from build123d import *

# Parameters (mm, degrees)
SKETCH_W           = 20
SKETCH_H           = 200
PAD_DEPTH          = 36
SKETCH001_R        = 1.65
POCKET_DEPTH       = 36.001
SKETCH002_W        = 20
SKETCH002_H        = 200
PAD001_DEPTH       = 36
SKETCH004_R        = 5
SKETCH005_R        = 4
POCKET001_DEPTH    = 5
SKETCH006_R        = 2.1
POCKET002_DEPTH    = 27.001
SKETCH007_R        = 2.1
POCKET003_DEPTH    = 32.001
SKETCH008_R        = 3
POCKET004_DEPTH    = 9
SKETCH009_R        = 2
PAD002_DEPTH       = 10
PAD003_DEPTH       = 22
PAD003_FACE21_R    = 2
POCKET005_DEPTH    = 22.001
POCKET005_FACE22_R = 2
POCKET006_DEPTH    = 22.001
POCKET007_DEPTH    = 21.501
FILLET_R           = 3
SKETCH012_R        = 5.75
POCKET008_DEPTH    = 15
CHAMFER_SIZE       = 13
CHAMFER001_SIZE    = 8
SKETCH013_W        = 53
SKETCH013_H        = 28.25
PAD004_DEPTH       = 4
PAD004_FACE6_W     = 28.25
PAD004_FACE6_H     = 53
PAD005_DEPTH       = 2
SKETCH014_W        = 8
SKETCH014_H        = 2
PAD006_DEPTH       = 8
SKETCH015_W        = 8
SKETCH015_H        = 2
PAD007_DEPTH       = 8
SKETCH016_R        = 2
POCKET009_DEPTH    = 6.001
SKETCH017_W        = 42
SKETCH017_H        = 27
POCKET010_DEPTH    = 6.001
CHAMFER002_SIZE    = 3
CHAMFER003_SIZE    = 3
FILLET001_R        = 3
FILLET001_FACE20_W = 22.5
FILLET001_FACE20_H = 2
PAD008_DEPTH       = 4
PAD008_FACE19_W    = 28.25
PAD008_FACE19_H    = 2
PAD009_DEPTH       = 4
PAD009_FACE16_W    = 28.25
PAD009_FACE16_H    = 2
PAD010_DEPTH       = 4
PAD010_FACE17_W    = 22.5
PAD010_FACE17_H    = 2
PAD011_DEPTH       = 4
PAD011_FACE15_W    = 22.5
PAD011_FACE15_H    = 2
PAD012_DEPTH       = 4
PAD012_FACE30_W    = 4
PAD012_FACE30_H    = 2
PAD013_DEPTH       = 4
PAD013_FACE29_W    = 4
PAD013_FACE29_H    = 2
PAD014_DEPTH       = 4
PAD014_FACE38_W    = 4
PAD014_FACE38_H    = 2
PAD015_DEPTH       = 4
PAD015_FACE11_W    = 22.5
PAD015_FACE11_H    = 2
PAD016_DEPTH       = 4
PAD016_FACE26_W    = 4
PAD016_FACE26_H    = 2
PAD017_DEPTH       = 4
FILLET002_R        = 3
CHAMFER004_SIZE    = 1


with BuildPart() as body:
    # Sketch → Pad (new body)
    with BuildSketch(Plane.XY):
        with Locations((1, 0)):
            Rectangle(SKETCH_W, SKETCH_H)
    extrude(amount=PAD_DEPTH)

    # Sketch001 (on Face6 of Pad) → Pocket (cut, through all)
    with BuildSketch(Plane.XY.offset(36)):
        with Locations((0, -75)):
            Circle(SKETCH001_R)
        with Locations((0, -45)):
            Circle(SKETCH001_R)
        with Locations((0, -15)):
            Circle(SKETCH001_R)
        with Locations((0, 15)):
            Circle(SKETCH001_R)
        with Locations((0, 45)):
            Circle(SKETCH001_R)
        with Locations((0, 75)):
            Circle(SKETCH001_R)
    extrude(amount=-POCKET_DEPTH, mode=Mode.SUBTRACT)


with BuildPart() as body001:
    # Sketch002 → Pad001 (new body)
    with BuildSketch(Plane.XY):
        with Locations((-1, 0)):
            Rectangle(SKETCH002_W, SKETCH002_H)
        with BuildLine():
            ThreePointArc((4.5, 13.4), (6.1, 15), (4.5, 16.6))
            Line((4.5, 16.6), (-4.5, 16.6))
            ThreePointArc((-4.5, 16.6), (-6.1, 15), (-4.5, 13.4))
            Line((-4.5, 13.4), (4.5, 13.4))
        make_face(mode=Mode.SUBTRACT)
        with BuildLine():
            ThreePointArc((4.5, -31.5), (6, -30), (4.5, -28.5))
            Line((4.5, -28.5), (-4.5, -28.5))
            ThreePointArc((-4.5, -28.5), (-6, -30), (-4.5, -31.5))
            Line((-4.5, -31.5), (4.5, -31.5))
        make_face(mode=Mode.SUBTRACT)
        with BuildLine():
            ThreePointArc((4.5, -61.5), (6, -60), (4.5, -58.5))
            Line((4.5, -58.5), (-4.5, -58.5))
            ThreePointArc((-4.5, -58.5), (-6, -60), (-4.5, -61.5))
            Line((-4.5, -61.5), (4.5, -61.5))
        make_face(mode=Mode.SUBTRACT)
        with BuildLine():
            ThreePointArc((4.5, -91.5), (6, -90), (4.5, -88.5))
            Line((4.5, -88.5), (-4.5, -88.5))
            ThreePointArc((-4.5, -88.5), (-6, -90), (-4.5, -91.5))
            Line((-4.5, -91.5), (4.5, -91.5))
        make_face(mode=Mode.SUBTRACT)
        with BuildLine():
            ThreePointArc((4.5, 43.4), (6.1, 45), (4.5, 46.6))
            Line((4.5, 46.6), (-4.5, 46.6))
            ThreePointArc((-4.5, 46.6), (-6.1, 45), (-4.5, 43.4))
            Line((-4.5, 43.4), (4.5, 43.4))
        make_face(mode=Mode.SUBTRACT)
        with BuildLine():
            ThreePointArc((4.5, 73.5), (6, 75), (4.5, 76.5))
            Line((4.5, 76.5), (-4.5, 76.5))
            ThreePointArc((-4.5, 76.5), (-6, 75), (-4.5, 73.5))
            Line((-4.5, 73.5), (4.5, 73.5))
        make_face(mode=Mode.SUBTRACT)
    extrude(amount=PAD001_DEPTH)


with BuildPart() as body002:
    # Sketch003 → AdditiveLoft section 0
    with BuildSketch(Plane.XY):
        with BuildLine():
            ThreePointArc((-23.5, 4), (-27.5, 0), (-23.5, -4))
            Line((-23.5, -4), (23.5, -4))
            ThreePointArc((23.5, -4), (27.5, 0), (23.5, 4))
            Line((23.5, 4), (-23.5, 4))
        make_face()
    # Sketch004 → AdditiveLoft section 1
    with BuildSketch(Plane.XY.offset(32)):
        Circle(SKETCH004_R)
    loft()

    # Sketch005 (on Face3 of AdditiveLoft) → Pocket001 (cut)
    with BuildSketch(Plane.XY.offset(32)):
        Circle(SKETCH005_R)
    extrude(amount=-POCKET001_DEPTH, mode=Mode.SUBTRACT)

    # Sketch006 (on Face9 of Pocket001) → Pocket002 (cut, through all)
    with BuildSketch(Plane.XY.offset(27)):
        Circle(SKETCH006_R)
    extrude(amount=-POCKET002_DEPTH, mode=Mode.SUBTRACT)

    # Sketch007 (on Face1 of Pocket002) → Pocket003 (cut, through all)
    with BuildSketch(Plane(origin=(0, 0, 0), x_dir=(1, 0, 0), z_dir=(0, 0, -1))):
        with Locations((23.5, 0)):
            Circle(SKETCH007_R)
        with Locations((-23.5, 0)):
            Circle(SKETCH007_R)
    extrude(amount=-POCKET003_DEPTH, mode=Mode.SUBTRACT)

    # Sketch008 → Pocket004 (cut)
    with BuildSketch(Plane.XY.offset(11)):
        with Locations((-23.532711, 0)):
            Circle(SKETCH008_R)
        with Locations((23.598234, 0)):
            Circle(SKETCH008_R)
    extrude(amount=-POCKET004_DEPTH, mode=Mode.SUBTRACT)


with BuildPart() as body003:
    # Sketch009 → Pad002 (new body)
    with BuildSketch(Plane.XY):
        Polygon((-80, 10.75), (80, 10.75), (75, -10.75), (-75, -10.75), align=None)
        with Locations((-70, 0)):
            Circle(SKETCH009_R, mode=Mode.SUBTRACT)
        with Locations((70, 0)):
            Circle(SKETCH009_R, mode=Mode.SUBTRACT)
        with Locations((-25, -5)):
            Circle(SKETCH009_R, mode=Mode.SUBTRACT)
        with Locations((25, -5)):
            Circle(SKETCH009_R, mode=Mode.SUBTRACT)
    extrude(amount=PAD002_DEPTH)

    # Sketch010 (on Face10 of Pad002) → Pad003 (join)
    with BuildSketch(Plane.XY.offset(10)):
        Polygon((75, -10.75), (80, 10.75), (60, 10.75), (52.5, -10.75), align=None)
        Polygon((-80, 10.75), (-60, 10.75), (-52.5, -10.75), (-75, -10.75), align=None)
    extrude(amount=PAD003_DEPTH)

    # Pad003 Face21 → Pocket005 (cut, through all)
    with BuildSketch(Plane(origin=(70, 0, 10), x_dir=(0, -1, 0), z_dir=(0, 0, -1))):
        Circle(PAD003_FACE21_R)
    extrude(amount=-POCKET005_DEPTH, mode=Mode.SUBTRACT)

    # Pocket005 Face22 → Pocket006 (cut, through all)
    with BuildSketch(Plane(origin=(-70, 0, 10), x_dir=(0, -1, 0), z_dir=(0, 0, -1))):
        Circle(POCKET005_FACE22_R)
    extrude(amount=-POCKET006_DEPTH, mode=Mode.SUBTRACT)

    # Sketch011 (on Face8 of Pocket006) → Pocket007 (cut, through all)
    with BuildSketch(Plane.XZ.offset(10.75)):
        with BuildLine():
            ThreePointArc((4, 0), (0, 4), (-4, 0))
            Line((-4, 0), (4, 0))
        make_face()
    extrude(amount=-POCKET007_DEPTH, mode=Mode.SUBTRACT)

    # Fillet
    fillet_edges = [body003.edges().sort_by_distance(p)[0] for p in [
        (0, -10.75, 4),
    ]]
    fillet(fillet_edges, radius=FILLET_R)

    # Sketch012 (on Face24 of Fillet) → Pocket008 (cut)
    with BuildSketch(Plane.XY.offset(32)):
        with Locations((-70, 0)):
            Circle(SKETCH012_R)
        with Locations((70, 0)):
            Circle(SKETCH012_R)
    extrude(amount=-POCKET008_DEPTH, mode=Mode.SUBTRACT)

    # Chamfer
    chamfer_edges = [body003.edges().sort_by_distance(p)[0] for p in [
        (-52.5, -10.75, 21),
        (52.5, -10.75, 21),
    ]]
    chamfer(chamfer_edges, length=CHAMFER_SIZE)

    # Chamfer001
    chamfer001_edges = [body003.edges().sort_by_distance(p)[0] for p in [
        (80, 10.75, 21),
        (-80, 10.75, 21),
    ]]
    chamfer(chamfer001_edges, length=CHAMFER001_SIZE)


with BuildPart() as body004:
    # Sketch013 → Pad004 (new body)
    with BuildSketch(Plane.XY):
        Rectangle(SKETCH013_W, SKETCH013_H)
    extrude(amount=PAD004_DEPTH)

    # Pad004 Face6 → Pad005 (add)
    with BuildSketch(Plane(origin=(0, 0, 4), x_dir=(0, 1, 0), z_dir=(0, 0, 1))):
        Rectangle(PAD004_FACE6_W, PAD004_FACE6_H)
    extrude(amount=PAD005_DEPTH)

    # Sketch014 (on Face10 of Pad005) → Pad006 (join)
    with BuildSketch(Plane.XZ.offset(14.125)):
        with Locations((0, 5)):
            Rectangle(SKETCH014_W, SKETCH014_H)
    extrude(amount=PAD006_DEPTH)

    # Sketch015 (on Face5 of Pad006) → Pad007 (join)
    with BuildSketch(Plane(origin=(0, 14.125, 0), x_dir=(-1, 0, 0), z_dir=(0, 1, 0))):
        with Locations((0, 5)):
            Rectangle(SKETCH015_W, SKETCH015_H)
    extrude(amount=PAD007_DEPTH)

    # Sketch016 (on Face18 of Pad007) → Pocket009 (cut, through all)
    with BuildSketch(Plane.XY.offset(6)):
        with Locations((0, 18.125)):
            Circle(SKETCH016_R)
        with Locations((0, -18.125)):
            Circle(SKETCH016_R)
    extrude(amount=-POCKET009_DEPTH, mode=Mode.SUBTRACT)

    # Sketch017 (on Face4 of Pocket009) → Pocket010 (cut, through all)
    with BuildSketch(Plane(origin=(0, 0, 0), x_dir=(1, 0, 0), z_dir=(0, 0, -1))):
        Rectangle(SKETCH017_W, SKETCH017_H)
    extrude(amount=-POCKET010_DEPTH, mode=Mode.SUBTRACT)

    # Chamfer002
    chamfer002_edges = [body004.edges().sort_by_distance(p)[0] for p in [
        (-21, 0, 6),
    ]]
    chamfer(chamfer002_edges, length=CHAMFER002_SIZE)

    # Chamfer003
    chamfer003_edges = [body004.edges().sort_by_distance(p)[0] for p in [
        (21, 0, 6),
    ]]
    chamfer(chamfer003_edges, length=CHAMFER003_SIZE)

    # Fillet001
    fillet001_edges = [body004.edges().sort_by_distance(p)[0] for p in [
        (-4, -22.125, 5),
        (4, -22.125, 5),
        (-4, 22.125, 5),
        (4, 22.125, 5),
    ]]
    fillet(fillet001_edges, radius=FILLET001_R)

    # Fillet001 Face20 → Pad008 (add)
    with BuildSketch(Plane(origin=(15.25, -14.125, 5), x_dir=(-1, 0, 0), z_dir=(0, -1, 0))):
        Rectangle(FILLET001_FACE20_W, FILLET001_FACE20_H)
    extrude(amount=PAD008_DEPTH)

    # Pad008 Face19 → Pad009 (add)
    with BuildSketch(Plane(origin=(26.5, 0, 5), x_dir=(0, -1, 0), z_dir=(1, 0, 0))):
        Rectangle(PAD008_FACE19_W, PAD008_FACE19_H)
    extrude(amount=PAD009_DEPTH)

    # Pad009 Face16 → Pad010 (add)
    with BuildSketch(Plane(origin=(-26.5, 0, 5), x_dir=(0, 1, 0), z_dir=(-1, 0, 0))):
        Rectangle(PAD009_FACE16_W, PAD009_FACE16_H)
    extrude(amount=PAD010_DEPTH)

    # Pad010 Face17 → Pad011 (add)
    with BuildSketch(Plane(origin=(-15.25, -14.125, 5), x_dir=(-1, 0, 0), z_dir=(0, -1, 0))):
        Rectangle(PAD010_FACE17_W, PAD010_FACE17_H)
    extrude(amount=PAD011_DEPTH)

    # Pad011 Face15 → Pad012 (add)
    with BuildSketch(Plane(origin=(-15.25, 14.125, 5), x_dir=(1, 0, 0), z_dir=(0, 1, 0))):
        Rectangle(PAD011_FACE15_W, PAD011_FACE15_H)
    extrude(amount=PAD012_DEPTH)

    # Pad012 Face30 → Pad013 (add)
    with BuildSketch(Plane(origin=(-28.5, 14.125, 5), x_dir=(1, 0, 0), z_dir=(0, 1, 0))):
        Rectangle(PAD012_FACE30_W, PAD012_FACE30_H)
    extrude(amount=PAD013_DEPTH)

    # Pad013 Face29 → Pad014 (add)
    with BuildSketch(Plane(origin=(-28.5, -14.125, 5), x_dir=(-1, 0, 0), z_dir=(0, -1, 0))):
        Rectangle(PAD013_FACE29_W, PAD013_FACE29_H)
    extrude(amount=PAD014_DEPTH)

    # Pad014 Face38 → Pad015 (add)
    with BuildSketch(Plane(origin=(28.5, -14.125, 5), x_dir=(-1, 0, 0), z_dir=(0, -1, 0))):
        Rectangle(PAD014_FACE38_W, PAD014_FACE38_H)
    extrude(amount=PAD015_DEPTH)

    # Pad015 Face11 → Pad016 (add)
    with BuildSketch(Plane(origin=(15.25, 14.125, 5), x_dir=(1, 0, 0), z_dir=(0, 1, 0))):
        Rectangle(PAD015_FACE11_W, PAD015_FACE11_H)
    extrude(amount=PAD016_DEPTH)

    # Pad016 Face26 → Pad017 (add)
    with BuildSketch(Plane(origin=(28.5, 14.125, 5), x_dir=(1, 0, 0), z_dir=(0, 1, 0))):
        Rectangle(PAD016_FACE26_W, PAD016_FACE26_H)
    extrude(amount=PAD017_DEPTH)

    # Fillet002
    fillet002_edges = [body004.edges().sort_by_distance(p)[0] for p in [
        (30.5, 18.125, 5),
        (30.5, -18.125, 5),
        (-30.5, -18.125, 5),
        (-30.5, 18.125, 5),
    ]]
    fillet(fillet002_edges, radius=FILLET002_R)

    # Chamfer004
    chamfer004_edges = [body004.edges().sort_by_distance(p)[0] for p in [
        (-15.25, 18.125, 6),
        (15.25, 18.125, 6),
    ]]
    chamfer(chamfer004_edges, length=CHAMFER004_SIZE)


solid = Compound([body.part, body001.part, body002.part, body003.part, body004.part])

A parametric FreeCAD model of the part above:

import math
import FreeCAD as App
import Part
import Sketcher
Q = App.Units.Quantity


def edges_at(feature, points):
    """Names of the edges that pass closest to the given points."""
    edges = feature.Shape.Edges
    near = lambda p: min(range(len(edges)), key=lambda i: edges[i].distToShape(Part.Vertex(*p))[0])
    return sorted({f"Edge{near(p) + 1}" for p in points})


def add_polygon(sketch, points):
    """Adds a closed chain of lines whose ends are joined by coincident constraints."""
    first, n = sketch.GeometryCount, len(points)
    for a, b in zip(points, points[1:] + points[:1]):
        sketch.addGeometry(Part.LineSegment(App.Vector(*a, 0), App.Vector(*b, 0)), False)
    for i in range(n):
        sketch.addConstraint(Sketcher.Constraint("Coincident", first + i, 2, first + (i + 1) % n, 1))

doc = App.newDocument("Part")
body = doc.addObject("PartDesign::Body", "Body")

sketch1 = doc.addObject("Sketcher::SketchObject", "Sketch")
body.addObject(sketch1)
sketch1.AttachmentSupport = (doc.XY_Plane, [""])
sketch1.MapMode = "FlatFace"
add_polygon(sketch1, [(-9, 100), (-9, -100), (11, -100), (11, 100)])
sketch1.addConstraint([
    Sketcher.Constraint("Vertical", 0),
    Sketcher.Constraint("Horizontal", 1),
    Sketcher.Constraint("Vertical", 2),
    Sketcher.Constraint("Horizontal", 3),
    Sketcher.Constraint("DistanceX", 1, 1, 1, 2, Q("20 mm")),
    Sketcher.Constraint("DistanceY", 0, 2, 0, 1, Q("200 mm")),
    Sketcher.Constraint("DistanceX", 0, 2, -1, 1, Q("9 mm")),
    Sketcher.Constraint("DistanceY", 0, 2, -1, 1, Q("100 mm")),
])
pad1 = doc.addObject("PartDesign::Pad", "Pad")
body.addObject(pad1)
pad1.Profile = sketch1
pad1.Length = 36

sketch2 = doc.addObject("Sketcher::SketchObject", "Sketch001")
body.addObject(sketch2)
sketch2.AttachmentSupport = (doc.XY_Plane, [""])
sketch2.MapMode = "FlatFace"
sketch2.AttachmentOffset = App.Placement(App.Vector(0, 0, 36), App.Rotation())
sketch2.addGeometry([
    Part.Circle(App.Vector(0, -75, 0), App.Vector(0, 0, 1), 1.6),
    Part.Circle(App.Vector(0, -45, 0), App.Vector(0, 0, 1), 1.6),
    Part.Circle(App.Vector(0, -15, 0), App.Vector(0, 0, 1), 1.6),
    Part.Circle(App.Vector(0, 15, 0), App.Vector(0, 0, 1), 1.6),
    Part.Circle(App.Vector(0, 45, 0), App.Vector(0, 0, 1), 1.6),
    Part.Circle(App.Vector(0, 75, 0), App.Vector(0, 0, 1), 1.6),
], False)
sketch2.addConstraint([
    Sketcher.Constraint("Equal", 0, 1),
    Sketcher.Constraint("Equal", 1, 2),
    Sketcher.Constraint("Equal", 2, 3),
    Sketcher.Constraint("Equal", 3, 4),
    Sketcher.Constraint("Equal", 4, 5),
    Sketcher.Constraint("Symmetric", 2, 3, 3, 3, -1, 1),
    Sketcher.Constraint("Symmetric", 1, 3, 4, 3, -1, 1),
    Sketcher.Constraint("Symmetric", 0, 3, 5, 3, -1, 1),
    Sketcher.Constraint("PointOnObject", 0, 3, -2),
    Sketcher.Constraint("PointOnObject", 1, 3, -2),
    Sketcher.Constraint("PointOnObject", 2, 3, -2),
    Sketcher.Constraint("Diameter", 0, Q("3.3 mm")),
    Sketcher.Constraint("DistanceY", 0, 3, -1, 1, Q("75 mm")),
    Sketcher.Constraint("DistanceY", 1, 3, -1, 1, Q("45 mm")),
    Sketcher.Constraint("DistanceY", 2, 3, -1, 1, Q("15 mm")),
])
pocket1 = doc.addObject("PartDesign::Pocket", "Pocket")
body.addObject(pocket1)
pocket1.Profile = sketch2
pocket1.Type = "ThroughAll"
body2 = doc.addObject("PartDesign::Body", "Body001")

sketch3 = doc.addObject("Sketcher::SketchObject", "Sketch002")
body2.addObject(sketch3)
sketch3.AttachmentSupport = (doc.getObject("XY_Plane001"), [""])
sketch3.MapMode = "FlatFace"
add_polygon(sketch3, [(-11, 100), (-11, -100), (9, -100), (9, 100)])
sketch3.addGeometry(Part.ArcOfCircle(Part.Circle(App.Vector(4.5, -90, 0), App.Vector(0, 0, 1), 1.5), math.radians(-90), math.radians(90)), False)
sketch3.addGeometry(Part.LineSegment(App.Vector(4.5, -91.5, 0), App.Vector(-4.5, -91.5, 0)), False)
sketch3.addGeometry(Part.ArcOfCircle(Part.Circle(App.Vector(-4.5, -90, 0), App.Vector(0, 0, 1), 1.5), math.radians(90), math.radians(270)), False)
sketch3.addGeometry(Part.LineSegment(App.Vector(-4.5, -88.5, 0), App.Vector(4.5, -88.5, 0)), False)
sketch3.addGeometry(Part.ArcOfCircle(Part.Circle(App.Vector(4.5, -60, 0), App.Vector(0, 0, 1), 1.5), math.radians(-90), math.radians(90)), False)
sketch3.addGeometry(Part.LineSegment(App.Vector(4.5, -61.5, 0), App.Vector(-4.5, -61.5, 0)), False)
sketch3.addGeometry(Part.ArcOfCircle(Part.Circle(App.Vector(-4.5, -60, 0), App.Vector(0, 0, 1), 1.5), math.radians(90), math.radians(270)), False)
sketch3.addGeometry(Part.LineSegment(App.Vector(-4.5, -58.5, 0), App.Vector(4.5, -58.5, 0)), False)
sketch3.addGeometry(Part.ArcOfCircle(Part.Circle(App.Vector(4.5, -30, 0), App.Vector(0, 0, 1), 1.5), math.radians(-90), math.radians(90)), False)
sketch3.addGeometry(Part.LineSegment(App.Vector(4.5, -31.5, 0), App.Vector(-4.5, -31.5, 0)), False)
sketch3.addGeometry(Part.ArcOfCircle(Part.Circle(App.Vector(-4.5, -30, 0), App.Vector(0, 0, 1), 1.5), math.radians(90), math.radians(270)), False)
sketch3.addGeometry(Part.LineSegment(App.Vector(-4.5, -28.5, 0), App.Vector(4.5, -28.5, 0)), False)
sketch3.addGeometry(Part.ArcOfCircle(Part.Circle(App.Vector(4.5, 15, 0), App.Vector(0, 0, 1), 1.6), math.radians(-90), math.radians(90)), False)
sketch3.addGeometry(Part.LineSegment(App.Vector(4.5, 13.4, 0), App.Vector(-4.5, 13.4, 0)), False)
sketch3.addGeometry(Part.ArcOfCircle(Part.Circle(App.Vector(-4.5, 15, 0), App.Vector(0, 0, 1), 1.6), math.radians(90), math.radians(270)), False)
sketch3.addGeometry(Part.LineSegment(App.Vector(-4.5, 16.6, 0), App.Vector(4.5, 16.6, 0)), False)
sketch3.addGeometry(Part.ArcOfCircle(Part.Circle(App.Vector(4.5, 45, 0), App.Vector(0, 0, 1), 1.6), math.radians(-90), math.radians(90)), False)
sketch3.addGeometry(Part.LineSegment(App.Vector(4.5, 43.4, 0), App.Vector(-4.5, 43.4, 0)), False)
sketch3.addGeometry(Part.ArcOfCircle(Part.Circle(App.Vector(-4.5, 45, 0), App.Vector(0, 0, 1), 1.6), math.radians(90), math.radians(270)), False)
sketch3.addGeometry(Part.LineSegment(App.Vector(-4.5, 46.6, 0), App.Vector(4.5, 46.6, 0)), False)
sketch3.addGeometry(Part.ArcOfCircle(Part.Circle(App.Vector(4.5, 75, 0), App.Vector(0, 0, 1), 1.5), math.radians(-90), math.radians(90)), False)
sketch3.addGeometry(Part.LineSegment(App.Vector(4.5, 73.5, 0), App.Vector(-4.5, 73.5, 0)), False)
sketch3.addGeometry(Part.ArcOfCircle(Part.Circle(App.Vector(-4.5, 75, 0), App.Vector(0, 0, 1), 1.5), math.radians(90), math.radians(270)), False)
sketch3.addGeometry(Part.LineSegment(App.Vector(-4.5, 76.5, 0), App.Vector(4.5, 76.5, 0)), False)
sketch3.addConstraint([
    Sketcher.Constraint("Tangent", 4, 1, 5, 1),
    Sketcher.Constraint("Tangent", 5, 2, 6, 2),
    Sketcher.Constraint("Tangent", 6, 1, 7, 1),
    Sketcher.Constraint("Tangent", 7, 2, 4, 2),
    Sketcher.Constraint("Tangent", 8, 1, 9, 1),
    Sketcher.Constraint("Tangent", 9, 2, 10, 2),
    Sketcher.Constraint("Tangent", 10, 1, 11, 1),
    Sketcher.Constraint("Tangent", 11, 2, 8, 2),
    Sketcher.Constraint("Tangent", 12, 1, 13, 1),
    Sketcher.Constraint("Tangent", 13, 2, 14, 2),
    Sketcher.Constraint("Tangent", 14, 1, 15, 1),
    Sketcher.Constraint("Tangent", 15, 2, 12, 2),
    Sketcher.Constraint("Tangent", 16, 1, 17, 1),
    Sketcher.Constraint("Tangent", 17, 2, 18, 2),
    Sketcher.Constraint("Tangent", 18, 1, 19, 1),
    Sketcher.Constraint("Tangent", 19, 2, 16, 2),
    Sketcher.Constraint("Tangent", 20, 1, 21, 1),
    Sketcher.Constraint("Tangent", 21, 2, 22, 2),
    Sketcher.Constraint("Tangent", 22, 1, 23, 1),
    Sketcher.Constraint("Tangent", 23, 2, 20, 2),
    Sketcher.Constraint("Tangent", 24, 1, 25, 1),
    Sketcher.Constraint("Tangent", 25, 2, 26, 2),
    Sketcher.Constraint("Tangent", 26, 1, 27, 1),
    Sketcher.Constraint("Tangent", 27, 2, 24, 2),
    Sketcher.Constraint("Vertical", 0),
    Sketcher.Constraint("Horizontal", 1),
    Sketcher.Constraint("Vertical", 2),
    Sketcher.Constraint("Horizontal", 3),
    Sketcher.Constraint("Horizontal", 5),
    Sketcher.Constraint("Horizontal", 7),
    Sketcher.Constraint("Horizontal", 9),
    Sketcher.Constraint("Horizontal", 11),
    Sketcher.Constraint("Horizontal", 13),
    Sketcher.Constraint("Horizontal", 15),
    Sketcher.Constraint("Horizontal", 17),
    Sketcher.Constraint("Horizontal", 19),
    Sketcher.Constraint("Horizontal", 21),
    Sketcher.Constraint("Horizontal", 23),
    Sketcher.Constraint("Horizontal", 25),
    Sketcher.Constraint("Horizontal", 27),
    Sketcher.Constraint("Equal", 6, 8),
    Sketcher.Constraint("Equal", 10, 12),
    Sketcher.Constraint("Equal", 18, 20),
    Sketcher.Constraint("Equal", 14, 24),
    Sketcher.Constraint("Vertical", 4, 3, 8, 3),
    Sketcher.Constraint("Vertical", 6, 3, 10, 3),
    Sketcher.Constraint("Vertical", 8, 3, 12, 3),
    Sketcher.Constraint("Vertical", 10, 3, 14, 3),
    Sketcher.Constraint("Vertical", 12, 3, 16, 3),
    Sketcher.Constraint("Vertical", 14, 3, 18, 3),
    Sketcher.Constraint("Vertical", 16, 3, 20, 3),
    Sketcher.Constraint("Vertical", 18, 3, 22, 3),
    Sketcher.Constraint("Vertical", 20, 3, 24, 3),
    Sketcher.Constraint("Vertical", 22, 3, 26, 3),
    Sketcher.Constraint("Radius", 4, Q("1.5 mm")),
    Sketcher.Constraint("Radius", 16, Q("1.6 mm")),
    Sketcher.Constraint("DistanceX", 1, 1, 1, 2, Q("20 mm")),
    Sketcher.Constraint("DistanceX", 5, 2, 5, 1, Q("9 mm")),
    Sketcher.Constraint("DistanceY", 0, 2, 0, 1, Q("200 mm")),
    Sketcher.Constraint("DistanceY", 4, 3, -1, 1, Q("90 mm")),
    Sketcher.Constraint("DistanceY", 8, 3, -1, 1, Q("60 mm")),
    Sketcher.Constraint("DistanceY", 12, 3, -1, 1, Q("30 mm")),
    Sketcher.Constraint("DistanceY", -1, 1, 16, 3, Q("15 mm")),
    Sketcher.Constraint("DistanceY", -1, 1, 20, 3, Q("45 mm")),
    Sketcher.Constraint("DistanceY", -1, 1, 24, 3, Q("75 mm")),
    Sketcher.Constraint("DistanceX", 0, 2, -1, 1, Q("11 mm")),
    Sketcher.Constraint("DistanceY", 0, 2, -1, 1, Q("100 mm")),
    Sketcher.Constraint("DistanceX", -1, 1, 4, 3, Q("4.5 mm")),
])
pad2 = doc.addObject("PartDesign::Pad", "Pad001")
body2.addObject(pad2)
pad2.Profile = sketch3
pad2.Length = 36
body3 = doc.addObject("PartDesign::Body", "Body002")

sketch4 = doc.addObject("Sketcher::SketchObject", "Sketch003")
body3.addObject(sketch4)
sketch4.AttachmentSupport = (doc.getObject("XY_Plane002"), [""])
sketch4.MapMode = "FlatFace"
sketch4.addGeometry([
    Part.ArcOfCircle(Part.Circle(App.Vector(-23.5, 0, 0), App.Vector(0, 0, 1), 4), math.radians(90), math.radians(270)),
    Part.LineSegment(App.Vector(-23.5, -4, 0), App.Vector(23.5, -4, 0)),
    Part.ArcOfCircle(Part.Circle(App.Vector(23.5, 0, 0), App.Vector(0, 0, 1), 4), math.radians(-90), math.radians(90)),
    Part.LineSegment(App.Vector(23.5, 4, 0), App.Vector(-23.5, 4, 0)),
], False)
sketch4.addConstraint([
    Sketcher.Constraint("Tangent", 0, 2, 1, 1),
    Sketcher.Constraint("Tangent", 1, 2, 2, 1),
    Sketcher.Constraint("Tangent", 2, 2, 3, 1),
    Sketcher.Constraint("Tangent", 3, 2, 0, 1),
    Sketcher.Constraint("Horizontal", 1),
    Sketcher.Constraint("Horizontal", 3),
    Sketcher.Constraint("Symmetric", 0, 3, 2, 3, -1, 1),
    Sketcher.Constraint("Radius", 0, Q("4 mm")),
    Sketcher.Constraint("DistanceX", 1, 1, 1, 2, Q("47 mm")),
])

sketch5 = doc.addObject("Sketcher::SketchObject", "Sketch004")
body3.addObject(sketch5)
sketch5.AttachmentSupport = (doc.getObject("XY_Plane002"), [""])
sketch5.MapMode = "FlatFace"
sketch5.AttachmentOffset = App.Placement(App.Vector(0, 0, 32), App.Rotation())
sketch5.addGeometry(Part.Circle(App.Vector(0, 0, 0), App.Vector(0, 0, 1), 5), False)
sketch5.addConstraint([
    Sketcher.Constraint("Coincident", 0, 3, -1, 1),
    Sketcher.Constraint("Diameter", 0, Q("10 mm")),
])

additiveloft = doc.addObject("PartDesign::AdditiveLoft", "AdditiveLoft")
body3.addObject(additiveloft)
additiveloft.Profile = sketch4
additiveloft.Sections = [sketch5]

sketch6 = doc.addObject("Sketcher::SketchObject", "Sketch005")
body3.addObject(sketch6)
sketch6.AttachmentSupport = (doc.getObject("XY_Plane002"), [""])
sketch6.MapMode = "FlatFace"
sketch6.AttachmentOffset = App.Placement(App.Vector(0, 0, 32), App.Rotation())
sketch6.addGeometry(Part.Circle(App.Vector(0, 0, 0), App.Vector(0, 0, 1), 4), False)
sketch6.addConstraint([
    Sketcher.Constraint("Coincident", 0, 3, -1, 1),
    Sketcher.Constraint("Diameter", 0, Q("8 mm")),
])
pocket2 = doc.addObject("PartDesign::Pocket", "Pocket001")
body3.addObject(pocket2)
pocket2.Profile = sketch6
pocket2.Length = 5

sketch7 = doc.addObject("Sketcher::SketchObject", "Sketch006")
body3.addObject(sketch7)
sketch7.AttachmentSupport = (doc.getObject("XY_Plane002"), [""])
sketch7.MapMode = "FlatFace"
sketch7.AttachmentOffset = App.Placement(App.Vector(0, 0, 27), App.Rotation())
sketch7.addGeometry(Part.Circle(App.Vector(0, 0, 0), App.Vector(0, 0, 1), 2.1), False)
sketch7.addConstraint([
    Sketcher.Constraint("Coincident", 0, 3, -1, 1),
    Sketcher.Constraint("Diameter", 0, Q("4.2 mm")),
])
pocket3 = doc.addObject("PartDesign::Pocket", "Pocket002")
body3.addObject(pocket3)
pocket3.Profile = sketch7
pocket3.Type = "ThroughAll"

sketch8 = doc.addObject("Sketcher::SketchObject", "Sketch007")
body3.addObject(sketch8)
sketch8.AttachmentSupport = (doc.getObject("XY_Plane002"), [""])
sketch8.MapMode = "FlatFace"
sketch8.addGeometry([
    Part.Circle(App.Vector(23.5, 0, 0), App.Vector(0, 0, 1), 2.1),
    Part.Circle(App.Vector(-23.5, 0, 0), App.Vector(0, 0, 1), 2.1),
], False)
sketch8.addConstraint([
    Sketcher.Constraint("Equal", 0, 1),
    Sketcher.Constraint("Symmetric", 0, 3, 1, 3, -1, 1),
    Sketcher.Constraint("PointOnObject", 0, 3, -1),
    Sketcher.Constraint("Diameter", 0, Q("4.2 mm")),
    Sketcher.Constraint("DistanceX", 1, 3, 0, 3, Q("47 mm")),
])
pocket4 = doc.addObject("PartDesign::Pocket", "Pocket003")
body3.addObject(pocket4)
pocket4.Profile = sketch8
pocket4.Type = "ThroughAll"
pocket4.Reversed = True

sketch9 = doc.addObject("Sketcher::SketchObject", "Sketch008")
body3.addObject(sketch9)
sketch9.AttachmentSupport = (doc.getObject("XY_Plane002"), [""])
sketch9.MapMode = "FlatFace"
sketch9.AttachmentOffset = App.Placement(App.Vector(0, 0, 11), App.Rotation())
sketch9.addGeometry([
    Part.Circle(App.Vector(-23.5, 0, 0), App.Vector(0, 0, 1), 3),
    Part.Circle(App.Vector(23.6, 0, 0), App.Vector(0, 0, 1), 3),
], False)
sketch9.addConstraint([
    Sketcher.Constraint("Equal", 0, 1),
    Sketcher.Constraint("PointOnObject", 0, 3, -1),
    Sketcher.Constraint("PointOnObject", 1, 3, -1),
    Sketcher.Constraint("Diameter", 0, Q("6 mm")),
    Sketcher.Constraint("DistanceX", 0, 3, -1, 1, Q("23.532711 mm")),
    Sketcher.Constraint("DistanceX", -1, 1, 1, 3, Q("23.598234 mm")),
])
pocket5 = doc.addObject("PartDesign::Pocket", "Pocket004")
body3.addObject(pocket5)
pocket5.Profile = sketch9
pocket5.Length = 9
body4 = doc.addObject("PartDesign::Body", "Body003")

sketch10 = doc.addObject("Sketcher::SketchObject", "Sketch009")
body4.addObject(sketch10)
sketch10.AttachmentSupport = (doc.getObject("XY_Plane003"), [""])
sketch10.MapMode = "FlatFace"
add_polygon(sketch10, [(80, 10.8), (-80, 10.8), (-75, -10.8), (75, -10.8)])
sketch10.addGeometry(Part.Circle(App.Vector(25, -5, 0), App.Vector(0, 0, 1), 2), False)
sketch10.addGeometry(Part.Circle(App.Vector(-25, -5, 0), App.Vector(0, 0, 1), 2), False)
sketch10.addGeometry(Part.Circle(App.Vector(70, 0, 0), App.Vector(0, 0, 1), 2), False)
sketch10.addGeometry(Part.Circle(App.Vector(-70, 0, 0), App.Vector(0, 0, 1), 2), False)
sketch10.addConstraint([
    Sketcher.Constraint("Horizontal", 0),
    Sketcher.Constraint("Horizontal", 2),
    Sketcher.Constraint("Equal", 4, 5),
    Sketcher.Constraint("Equal", 5, 6),
    Sketcher.Constraint("Equal", 6, 7),
    Sketcher.Constraint("Symmetric", 6, 3, 7, 3, -1, 1),
    Sketcher.Constraint("Symmetric", 4, 3, 5, 3, -2),
    Sketcher.Constraint("PointOnObject", 6, 3, -1),
    Sketcher.Constraint("Equal", 1, 3),
    Sketcher.Constraint("Diameter", 4, Q("4 mm")),
    Sketcher.Constraint("DistanceX", 0, 2, 0, 1, Q("160 mm")),
    Sketcher.Constraint("DistanceX", 2, 1, 2, 2, Q("150 mm")),
    Sketcher.Constraint("DistanceX", -1, 1, 4, 3, Q("25 mm")),
    Sketcher.Constraint("DistanceY", 4, 3, -1, 1, Q("5 mm")),
    Sketcher.Constraint("DistanceX", -1, 1, 6, 3, Q("70 mm")),
    Sketcher.Constraint("DistanceX", 0, 2, -1, 1, Q("80 mm")),
    Sketcher.Constraint("DistanceY", 1, 2, 0, 2, Q("21.5 mm")),
    Sketcher.Constraint("DistanceY", -1, 1, 0, 2, Q("10.75 mm")),
])
pad3 = doc.addObject("PartDesign::Pad", "Pad002")
body4.addObject(pad3)
pad3.Profile = sketch10
pad3.Length = 10

sketch11 = doc.addObject("Sketcher::SketchObject", "Sketch010")
body4.addObject(sketch11)
sketch11.AttachmentSupport = (doc.getObject("XY_Plane003"), [""])
sketch11.MapMode = "FlatFace"
sketch11.AttachmentOffset = App.Placement(App.Vector(0, 0, 10), App.Rotation())
add_polygon(sketch11, [(75, -11), (80, 11), (60, 11), (52, -11)])
add_polygon(sketch11, [(-60, 11), (-80, 11), (-75, -11), (-52, -11)])
sketch11.addConstraint([
    Sketcher.Constraint("Horizontal", 1),
    Sketcher.Constraint("Horizontal", 3),
    Sketcher.Constraint("Horizontal", 4),
    Sketcher.Constraint("Horizontal", 6),
    Sketcher.Constraint("Symmetric", 0, 2, 4, 2, -2),
    Sketcher.Constraint("Symmetric", 3, 2, 5, 2, -2),
    Sketcher.Constraint("Equal", 1, 4),
    Sketcher.Constraint("Equal", 3, 6),
    Sketcher.Constraint("DistanceX", 1, 2, 1, 1, Q("20 mm")),
    Sketcher.Constraint("DistanceX", 3, 1, 3, 2, Q("22.5 mm")),
    Sketcher.Constraint("DistanceX", -1, 1, 0, 2, Q("80 mm")),
    Sketcher.Constraint("DistanceX", -1, 1, 3, 2, Q("75 mm")),
    Sketcher.Constraint("DistanceY", 2, 2, 1, 2, Q("21.5 mm")),
    Sketcher.Constraint("DistanceY", -1, 1, 0, 2, Q("10.75 mm")),
])
pad4 = doc.addObject("PartDesign::Pad", "Pad003")
body4.addObject(pad4)
pad4.Profile = sketch11
pad4.Length = 22

sketch12 = doc.addObject("Sketcher::SketchObject", "Sketch011")
body4.addObject(sketch12)
sketch12.AttachmentSupport = (doc.getObject("XY_Plane003"), [""])
sketch12.MapMode = "FlatFace"
sketch12.AttachmentOffset = App.Placement(App.Vector(0, 0, 10), App.Rotation())
sketch12.addGeometry(Part.Circle(App.Vector(70, 0, 0), App.Vector(0, 0, 1), 2), False)
sketch12.addConstraint([
    Sketcher.Constraint("PointOnObject", 0, 3, -1),
    Sketcher.Constraint("Diameter", 0, Q("4 mm")),
    Sketcher.Constraint("DistanceX", -1, 1, 0, 3, Q("70 mm")),
])
pocket6 = doc.addObject("PartDesign::Pocket", "Pocket005")
body4.addObject(pocket6)
pocket6.Profile = sketch12
pocket6.Type = "ThroughAll"
pocket6.Reversed = True

sketch13 = doc.addObject("Sketcher::SketchObject", "Sketch012")
body4.addObject(sketch13)
sketch13.AttachmentSupport = (doc.getObject("XY_Plane003"), [""])
sketch13.MapMode = "FlatFace"
sketch13.AttachmentOffset = App.Placement(App.Vector(0, 0, 10), App.Rotation())
sketch13.addGeometry(Part.Circle(App.Vector(-70, 0, 0), App.Vector(0, 0, 1), 2), False)
sketch13.addConstraint([
    Sketcher.Constraint("PointOnObject", 0, 3, -1),
    Sketcher.Constraint("Diameter", 0, Q("4 mm")),
    Sketcher.Constraint("DistanceX", 0, 3, -1, 1, Q("70 mm")),
])
pocket7 = doc.addObject("PartDesign::Pocket", "Pocket006")
body4.addObject(pocket7)
pocket7.Profile = sketch13
pocket7.Type = "ThroughAll"
pocket7.Reversed = True

sketch14 = doc.addObject("Sketcher::SketchObject", "Sketch013")
body4.addObject(sketch14)
sketch14.AttachmentSupport = (doc.getObject("XZ_Plane003"), [""])
sketch14.MapMode = "FlatFace"
sketch14.AttachmentOffset = App.Placement(App.Vector(0, 0, 10.75), App.Rotation())
sketch14.addGeometry([
    Part.ArcOfCircle(Part.Circle(App.Vector(0, 0, 0), App.Vector(0, 0, 1), 4), math.radians(0), math.radians(180)),
    Part.LineSegment(App.Vector(-4, 0, 0), App.Vector(4, 0, 0)),
], False)
sketch14.addConstraint([
    Sketcher.Constraint("Coincident", 0, 1, 1, 2),
    Sketcher.Constraint("Coincident", 1, 1, 0, 2),
    Sketcher.Constraint("Horizontal", 1),
    Sketcher.Constraint("Coincident", 0, 3, -1, 1),
    Sketcher.Constraint("PointOnObject", 0, 1, -1),
    Sketcher.Constraint("Radius", 0, Q("4 mm")),
])
pocket8 = doc.addObject("PartDesign::Pocket", "Pocket007")
body4.addObject(pocket8)
pocket8.Profile = sketch14
pocket8.Type = "ThroughAll"
doc.recompute()

fillet = doc.addObject("PartDesign::Fillet", "Fillet")
body4.addObject(fillet)
fillet.Base = (pocket8, edges_at(pocket8, [(0, -10.75, 4)]))
fillet.Radius = 3

sketch15 = doc.addObject("Sketcher::SketchObject", "Sketch014")
body4.addObject(sketch15)
sketch15.AttachmentSupport = (doc.getObject("XY_Plane003"), [""])
sketch15.MapMode = "FlatFace"
sketch15.AttachmentOffset = App.Placement(App.Vector(0, 0, 32), App.Rotation())
sketch15.addGeometry([
    Part.Circle(App.Vector(-70, 0, 0), App.Vector(0, 0, 1), 6),
    Part.Circle(App.Vector(70, 0, 0), App.Vector(0, 0, 1), 6),
], False)
sketch15.addConstraint([
    Sketcher.Constraint("Equal", 0, 1),
    Sketcher.Constraint("Symmetric", 0, 3, 1, 3, -1, 1),
    Sketcher.Constraint("PointOnObject", 0, 3, -1),
    Sketcher.Constraint("Diameter", 0, Q("11.5 mm")),
    Sketcher.Constraint("DistanceX", 0, 3, -1, 1, Q("70 mm")),
])
pocket9 = doc.addObject("PartDesign::Pocket", "Pocket008")
body4.addObject(pocket9)
pocket9.Profile = sketch15
pocket9.Length = 15
doc.recompute()

chamfer = doc.addObject("PartDesign::Chamfer", "Chamfer")
body4.addObject(chamfer)
chamfer.Base = (pocket9, edges_at(pocket9, [(-52.5, -10.75, 21), (52.5, -10.75, 21)]))
chamfer.Size = 13
doc.recompute()

chamfer2 = doc.addObject("PartDesign::Chamfer", "Chamfer001")
body4.addObject(chamfer2)
chamfer2.Base = (chamfer, edges_at(chamfer, [(80, 10.75, 16), (-80, 10.75, 16)]))
chamfer2.Size = 8
body5 = doc.addObject("PartDesign::Body", "Body004")

sketch16 = doc.addObject("Sketcher::SketchObject", "Sketch015")
body5.addObject(sketch16)
sketch16.AttachmentSupport = (doc.getObject("XY_Plane004"), [""])
sketch16.MapMode = "FlatFace"
add_polygon(sketch16, [(-26, 14), (-26, -14), (26, -14), (26, 14)])
sketch16.addConstraint([
    Sketcher.Constraint("Vertical", 0),
    Sketcher.Constraint("Horizontal", 1),
    Sketcher.Constraint("Vertical", 2),
    Sketcher.Constraint("Horizontal", 3),
    Sketcher.Constraint("Symmetric", 0, 2, 2, 2, -1, 1),
    Sketcher.Constraint("DistanceX", 1, 1, 1, 2, Q("53 mm")),
    Sketcher.Constraint("DistanceY", 0, 2, 0, 1, Q("28.25 mm")),
])
pad5 = doc.addObject("PartDesign::Pad", "Pad004")
body5.addObject(pad5)
pad5.Profile = sketch16
pad5.Length = 4

sketch17 = doc.addObject("Sketcher::SketchObject", "Sketch016")
body5.addObject(sketch17)
sketch17.AttachmentSupport = (doc.getObject("XY_Plane004"), [""])
sketch17.MapMode = "FlatFace"
sketch17.AttachmentOffset = App.Placement(App.Vector(0, 0, 4), App.Rotation())
add_polygon(sketch17, [(-26, -14), (26, -14), (26, 14), (-26, 14)])
sketch17.addConstraint([
    Sketcher.Constraint("Horizontal", 0),
    Sketcher.Constraint("Vertical", 1),
    Sketcher.Constraint("Horizontal", 2),
    Sketcher.Constraint("Vertical", 3),
    Sketcher.Constraint("Symmetric", 0, 2, 2, 2, -1, 1),
    Sketcher.Constraint("DistanceX", 0, 1, 0, 2, Q("53 mm")),
    Sketcher.Constraint("DistanceY", 1, 1, 1, 2, Q("28.25 mm")),
])
pad6 = doc.addObject("PartDesign::Pad", "Pad005")
body5.addObject(pad6)
pad6.Profile = sketch17
pad6.Length = 2

sketch18 = doc.addObject("Sketcher::SketchObject", "Sketch017")
body5.addObject(sketch18)
sketch18.AttachmentSupport = (doc.getObject("XZ_Plane004"), [""])
sketch18.MapMode = "FlatFace"
sketch18.AttachmentOffset = App.Placement(App.Vector(0, 0, 14.125), App.Rotation())
add_polygon(sketch18, [(-4, 6), (-4, 4), (4, 4), (4, 6)])
sketch18.addConstraint([
    Sketcher.Constraint("Vertical", 0),
    Sketcher.Constraint("Horizontal", 1),
    Sketcher.Constraint("Vertical", 2),
    Sketcher.Constraint("Horizontal", 3),
    Sketcher.Constraint("DistanceX", 1, 1, 1, 2, Q("8 mm")),
    Sketcher.Constraint("DistanceY", 0, 2, 0, 1, Q("2 mm")),
    Sketcher.Constraint("DistanceX", 0, 2, -1, 1, Q("4 mm")),
    Sketcher.Constraint("DistanceY", -1, 1, 0, 2, Q("4 mm")),
])
pad7 = doc.addObject("PartDesign::Pad", "Pad006")
body5.addObject(pad7)
pad7.Profile = sketch18
pad7.Length = 8

sketch19 = doc.addObject("Sketcher::SketchObject", "Sketch018")
body5.addObject(sketch19)
sketch19.AttachmentSupport = (doc.getObject("XZ_Plane004"), [""])
sketch19.MapMode = "FlatFace"
sketch19.AttachmentOffset = App.Placement(App.Vector(0, 0, -14.125), App.Rotation())
add_polygon(sketch19, [(4, 6), (4, 4), (-4, 4), (-4, 6)])
sketch19.addConstraint([
    Sketcher.Constraint("Vertical", 0),
    Sketcher.Constraint("Horizontal", 1),
    Sketcher.Constraint("Vertical", 2),
    Sketcher.Constraint("Horizontal", 3),
    Sketcher.Constraint("DistanceX", 1, 2, 1, 1, Q("8 mm")),
    Sketcher.Constraint("DistanceY", 0, 2, 0, 1, Q("2 mm")),
    Sketcher.Constraint("DistanceX", -1, 1, 0, 2, Q("4 mm")),
    Sketcher.Constraint("DistanceY", -1, 1, 0, 2, Q("4 mm")),
])
pad8 = doc.addObject("PartDesign::Pad", "Pad007")
body5.addObject(pad8)
pad8.Profile = sketch19
pad8.Length = 8
pad8.Reversed = True

sketch20 = doc.addObject("Sketcher::SketchObject", "Sketch019")
body5.addObject(sketch20)
sketch20.AttachmentSupport = (doc.getObject("XY_Plane004"), [""])
sketch20.MapMode = "FlatFace"
sketch20.AttachmentOffset = App.Placement(App.Vector(0, 0, 6), App.Rotation())
sketch20.addGeometry([
    Part.Circle(App.Vector(0, 18.1, 0), App.Vector(0, 0, 1), 2),
    Part.Circle(App.Vector(0, -18.1, 0), App.Vector(0, 0, 1), 2),
], False)
sketch20.addConstraint([
    Sketcher.Constraint("Equal", 0, 1),
    Sketcher.Constraint("Symmetric", 0, 3, 1, 3, -1, 1),
    Sketcher.Constraint("PointOnObject", 0, 3, -2),
    Sketcher.Constraint("Diameter", 0, Q("4 mm")),
    Sketcher.Constraint("DistanceY", 1, 3, 0, 3, Q("36.25 mm")),
])
pocket10 = doc.addObject("PartDesign::Pocket", "Pocket009")
body5.addObject(pocket10)
pocket10.Profile = sketch20
pocket10.Type = "ThroughAll"

sketch21 = doc.addObject("Sketcher::SketchObject", "Sketch020")
body5.addObject(sketch21)
sketch21.AttachmentSupport = (doc.getObject("XY_Plane004"), [""])
sketch21.MapMode = "FlatFace"
add_polygon(sketch21, [(-21, -14), (-21, 14), (21, 14), (21, -14)])
sketch21.addConstraint([
    Sketcher.Constraint("Vertical", 0),
    Sketcher.Constraint("Horizontal", 1),
    Sketcher.Constraint("Vertical", 2),
    Sketcher.Constraint("Horizontal", 3),
    Sketcher.Constraint("Symmetric", 0, 2, 2, 2, -1, 1),
    Sketcher.Constraint("DistanceX", 1, 1, 1, 2, Q("42 mm")),
    Sketcher.Constraint("DistanceY", 0, 1, 0, 2, Q("27 mm")),
])
pocket11 = doc.addObject("PartDesign::Pocket", "Pocket010")
body5.addObject(pocket11)
pocket11.Profile = sketch21
pocket11.Type = "ThroughAll"
pocket11.Reversed = True
doc.recompute()

chamfer3 = doc.addObject("PartDesign::Chamfer", "Chamfer002")
body5.addObject(chamfer3)
chamfer3.Base = (pocket11, edges_at(pocket11, [(-21, 0, 6)]))
chamfer3.Size = 3
doc.recompute()

chamfer4 = doc.addObject("PartDesign::Chamfer", "Chamfer003")
body5.addObject(chamfer4)
chamfer4.Base = (chamfer3, edges_at(chamfer3, [(21, 0, 6)]))
chamfer4.Size = 3
doc.recompute()

fillet2 = doc.addObject("PartDesign::Fillet", "Fillet001")
body5.addObject(fillet2)
fillet2.Base = (chamfer4, edges_at(chamfer4, [
    (-4, -22.125, 5),
    (4, -22.125, 5),
    (-4, 22.125, 5),
    (4, 22.125, 5),
]))
fillet2.Radius = 3

sketch22 = doc.addObject("Sketcher::SketchObject", "Sketch021")
body5.addObject(sketch22)
sketch22.AttachmentSupport = (doc.getObject("XZ_Plane004"), [""])
sketch22.MapMode = "FlatFace"
sketch22.AttachmentOffset = App.Placement(App.Vector(0, 0, 14.125), App.Rotation())
add_polygon(sketch22, [(26.5, 4), (26.5, 6), (4, 6), (4, 4)])
sketch22.addConstraint([
    Sketcher.Constraint("Vertical", 0),
    Sketcher.Constraint("Horizontal", 1),
    Sketcher.Constraint("Vertical", 2),
    Sketcher.Constraint("Horizontal", 3),
    Sketcher.Constraint("DistanceY", 0, 1, 0, 2, Q("2 mm")),
    Sketcher.Constraint("DistanceX", 1, 2, 1, 1, Q("22.5 mm")),
    Sketcher.Constraint("DistanceY", -1, 1, 0, 2, Q("6 mm")),
    Sketcher.Constraint("DistanceX", -1, 1, 1, 2, Q("4 mm")),
])
pad9 = doc.addObject("PartDesign::Pad", "Pad008")
body5.addObject(pad9)
pad9.Profile = sketch22
pad9.Length = 4

sketch23 = doc.addObject("Sketcher::SketchObject", "Sketch022")
body5.addObject(sketch23)
sketch23.AttachmentSupport = (doc.getObject("YZ_Plane004"), [""])
sketch23.MapMode = "FlatFace"
sketch23.AttachmentOffset = App.Placement(App.Vector(0, 0, 26.5), App.Rotation())
add_polygon(sketch23, [(14.1, 4), (14.1, 6), (-14.1, 6), (-14.1, 4)])
sketch23.addConstraint([
    Sketcher.Constraint("Vertical", 0),
    Sketcher.Constraint("Horizontal", 1),
    Sketcher.Constraint("Vertical", 2),
    Sketcher.Constraint("Horizontal", 3),
    Sketcher.Constraint("DistanceY", 0, 1, 0, 2, Q("2 mm")),
    Sketcher.Constraint("DistanceY", -1, 1, 0, 2, Q("6 mm")),
    Sketcher.Constraint("DistanceX", 1, 2, 1, 1, Q("28.25 mm")),
    Sketcher.Constraint("DistanceX", -1, 1, 0, 2, Q("14.125 mm")),
])
pad10 = doc.addObject("PartDesign::Pad", "Pad009")
body5.addObject(pad10)
pad10.Profile = sketch23
pad10.Length = 4

sketch24 = doc.addObject("Sketcher::SketchObject", "Sketch023")
body5.addObject(sketch24)
sketch24.AttachmentSupport = (doc.getObject("YZ_Plane004"), [""])
sketch24.MapMode = "FlatFace"
sketch24.AttachmentOffset = App.Placement(App.Vector(0, 0, -26.5), App.Rotation())
add_polygon(sketch24, [(-14.1, 4), (-14.1, 6), (14.1, 6), (14.1, 4)])
sketch24.addConstraint([
    Sketcher.Constraint("Vertical", 0),
    Sketcher.Constraint("Horizontal", 1),
    Sketcher.Constraint("Vertical", 2),
    Sketcher.Constraint("Horizontal", 3),
    Sketcher.Constraint("DistanceY", 0, 1, 0, 2, Q("2 mm")),
    Sketcher.Constraint("DistanceY", -1, 1, 0, 2, Q("6 mm")),
    Sketcher.Constraint("DistanceX", 1, 1, 1, 2, Q("28.25 mm")),
    Sketcher.Constraint("DistanceX", 0, 2, -1, 1, Q("14.125 mm")),
])
pad11 = doc.addObject("PartDesign::Pad", "Pad010")
body5.addObject(pad11)
pad11.Profile = sketch24
pad11.Length = 4
pad11.Reversed = True

sketch25 = doc.addObject("Sketcher::SketchObject", "Sketch024")
body5.addObject(sketch25)
sketch25.AttachmentSupport = (doc.getObject("XZ_Plane004"), [""])
sketch25.MapMode = "FlatFace"
sketch25.AttachmentOffset = App.Placement(App.Vector(0, 0, 14.125), App.Rotation())
add_polygon(sketch25, [(-4, 4), (-4, 6), (-26.5, 6), (-26.5, 4)])
sketch25.addConstraint([
    Sketcher.Constraint("Vertical", 0),
    Sketcher.Constraint("Horizontal", 1),
    Sketcher.Constraint("Vertical", 2),
    Sketcher.Constraint("Horizontal", 3),
    Sketcher.Constraint("DistanceY", 0, 1, 0, 2, Q("2 mm")),
    Sketcher.Constraint("DistanceX", 1, 2, 1, 1, Q("22.5 mm")),
    Sketcher.Constraint("DistanceX", 0, 2, -1, 1, Q("4 mm")),
    Sketcher.Constraint("DistanceY", -1, 1, 0, 2, Q("6 mm")),
])
pad12 = doc.addObject("PartDesign::Pad", "Pad011")
body5.addObject(pad12)
pad12.Profile = sketch25
pad12.Length = 4

sketch26 = doc.addObject("Sketcher::SketchObject", "Sketch025")
body5.addObject(sketch26)
sketch26.AttachmentSupport = (doc.getObject("XZ_Plane004"), [""])
sketch26.MapMode = "FlatFace"
sketch26.AttachmentOffset = App.Placement(App.Vector(0, 0, -14.125), App.Rotation())
add_polygon(sketch26, [(-26.5, 4), (-26.5, 6), (-4, 6), (-4, 4)])
sketch26.addConstraint([
    Sketcher.Constraint("Vertical", 0),
    Sketcher.Constraint("Horizontal", 1),
    Sketcher.Constraint("Vertical", 2),
    Sketcher.Constraint("Horizontal", 3),
    Sketcher.Constraint("DistanceY", 0, 1, 0, 2, Q("2 mm")),
    Sketcher.Constraint("DistanceX", 1, 1, 1, 2, Q("22.5 mm")),
    Sketcher.Constraint("DistanceY", -1, 1, 0, 2, Q("6 mm")),
    Sketcher.Constraint("DistanceX", 1, 2, -1, 1, Q("4 mm")),
])
pad13 = doc.addObject("PartDesign::Pad", "Pad012")
body5.addObject(pad13)
pad13.Profile = sketch26
pad13.Length = 4
pad13.Reversed = True

sketch27 = doc.addObject("Sketcher::SketchObject", "Sketch026")
body5.addObject(sketch27)
sketch27.AttachmentSupport = (doc.getObject("XZ_Plane004"), [""])
sketch27.MapMode = "FlatFace"
sketch27.AttachmentOffset = App.Placement(App.Vector(0, 0, -14.125), App.Rotation())
add_polygon(sketch27, [(-30.5, 4), (-30.5, 6), (-26.5, 6), (-26.5, 4)])
sketch27.addConstraint([
    Sketcher.Constraint("Vertical", 0),
    Sketcher.Constraint("Horizontal", 1),
    Sketcher.Constraint("Vertical", 2),
    Sketcher.Constraint("Horizontal", 3),
    Sketcher.Constraint("DistanceX", 1, 1, 1, 2, Q("4 mm")),
    Sketcher.Constraint("DistanceY", 0, 1, 0, 2, Q("2 mm")),
    Sketcher.Constraint("DistanceY", -1, 1, 0, 2, Q("6 mm")),
    Sketcher.Constraint("DistanceX", 0, 2, -1, 1, Q("30.5 mm")),
])
pad14 = doc.addObject("PartDesign::Pad", "Pad013")
body5.addObject(pad14)
pad14.Profile = sketch27
pad14.Length = 4
pad14.Reversed = True

sketch28 = doc.addObject("Sketcher::SketchObject", "Sketch027")
body5.addObject(sketch28)
sketch28.AttachmentSupport = (doc.getObject("XZ_Plane004"), [""])
sketch28.MapMode = "FlatFace"
sketch28.AttachmentOffset = App.Placement(App.Vector(0, 0, 14.125), App.Rotation())
add_polygon(sketch28, [(-26.5, 4), (-26.5, 6), (-30.5, 6), (-30.5, 4)])
sketch28.addConstraint([
    Sketcher.Constraint("Vertical", 0),
    Sketcher.Constraint("Horizontal", 1),
    Sketcher.Constraint("Vertical", 2),
    Sketcher.Constraint("Horizontal", 3),
    Sketcher.Constraint("DistanceX", 1, 2, 1, 1, Q("4 mm")),
    Sketcher.Constraint("DistanceY", 0, 1, 0, 2, Q("2 mm")),
    Sketcher.Constraint("DistanceY", -1, 1, 0, 2, Q("6 mm")),
    Sketcher.Constraint("DistanceX", 0, 2, -1, 1, Q("26.5 mm")),
])
pad15 = doc.addObject("PartDesign::Pad", "Pad014")
body5.addObject(pad15)
pad15.Profile = sketch28
pad15.Length = 4

sketch29 = doc.addObject("Sketcher::SketchObject", "Sketch028")
body5.addObject(sketch29)
sketch29.AttachmentSupport = (doc.getObject("XZ_Plane004"), [""])
sketch29.MapMode = "FlatFace"
sketch29.AttachmentOffset = App.Placement(App.Vector(0, 0, 14.125), App.Rotation())
add_polygon(sketch29, [(30.5, 4), (30.5, 6), (26.5, 6), (26.5, 4)])
sketch29.addConstraint([
    Sketcher.Constraint("Vertical", 0),
    Sketcher.Constraint("Horizontal", 1),
    Sketcher.Constraint("Vertical", 2),
    Sketcher.Constraint("Horizontal", 3),
    Sketcher.Constraint("DistanceX", 1, 2, 1, 1, Q("4 mm")),
    Sketcher.Constraint("DistanceY", 0, 1, 0, 2, Q("2 mm")),
    Sketcher.Constraint("DistanceY", -1, 1, 0, 2, Q("6 mm")),
    Sketcher.Constraint("DistanceX", -1, 1, 0, 2, Q("30.5 mm")),
])
pad16 = doc.addObject("PartDesign::Pad", "Pad015")
body5.addObject(pad16)
pad16.Profile = sketch29
pad16.Length = 4

sketch30 = doc.addObject("Sketcher::SketchObject", "Sketch029")
body5.addObject(sketch30)
sketch30.AttachmentSupport = (doc.getObject("XZ_Plane004"), [""])
sketch30.MapMode = "FlatFace"
sketch30.AttachmentOffset = App.Placement(App.Vector(0, 0, -14.125), App.Rotation())
add_polygon(sketch30, [(4, 4), (4, 6), (26.5, 6), (26.5, 4)])
sketch30.addConstraint([
    Sketcher.Constraint("Vertical", 0),
    Sketcher.Constraint("Horizontal", 1),
    Sketcher.Constraint("Vertical", 2),
    Sketcher.Constraint("Horizontal", 3),
    Sketcher.Constraint("DistanceY", 0, 1, 0, 2, Q("2 mm")),
    Sketcher.Constraint("DistanceX", 1, 1, 1, 2, Q("22.5 mm")),
    Sketcher.Constraint("DistanceX", -1, 1, 0, 2, Q("4 mm")),
    Sketcher.Constraint("DistanceY", -1, 1, 0, 2, Q("6 mm")),
])
pad17 = doc.addObject("PartDesign::Pad", "Pad016")
body5.addObject(pad17)
pad17.Profile = sketch30
pad17.Length = 4
pad17.Reversed = True

sketch31 = doc.addObject("Sketcher::SketchObject", "Sketch030")
body5.addObject(sketch31)
sketch31.AttachmentSupport = (doc.getObject("XZ_Plane004"), [""])
sketch31.MapMode = "FlatFace"
sketch31.AttachmentOffset = App.Placement(App.Vector(0, 0, -14.125), App.Rotation())
add_polygon(sketch31, [(26.5, 4), (26.5, 6), (30.5, 6), (30.5, 4)])
sketch31.addConstraint([
    Sketcher.Constraint("Vertical", 0),
    Sketcher.Constraint("Horizontal", 1),
    Sketcher.Constraint("Vertical", 2),
    Sketcher.Constraint("Horizontal", 3),
    Sketcher.Constraint("DistanceX", 1, 1, 1, 2, Q("4 mm")),
    Sketcher.Constraint("DistanceY", 0, 1, 0, 2, Q("2 mm")),
    Sketcher.Constraint("DistanceY", -1, 1, 0, 2, Q("6 mm")),
    Sketcher.Constraint("DistanceX", -1, 1, 0, 2, Q("26.5 mm")),
])
pad18 = doc.addObject("PartDesign::Pad", "Pad017")
body5.addObject(pad18)
pad18.Profile = sketch31
pad18.Length = 4
pad18.Reversed = True
doc.recompute()

fillet3 = doc.addObject("PartDesign::Fillet", "Fillet002")
body5.addObject(fillet3)
fillet3.Base = (pad18, edges_at(pad18, [
    (30.5, 18.125, 5),
    (30.5, -18.125, 5),
    (-30.5, -18.125, 5),
    (-30.5, 18.125, 5),
]))
fillet3.Radius = 3
doc.recompute()

chamfer5 = doc.addObject("PartDesign::Chamfer", "Chamfer004")
body5.addObject(chamfer5)
chamfer5.Base = (fillet3, edges_at(fillet3, [(-15.75, 18.125, 6), (15.75, 18.125, 6)]))
chamfer5.Size = 1

doc.recompute()
